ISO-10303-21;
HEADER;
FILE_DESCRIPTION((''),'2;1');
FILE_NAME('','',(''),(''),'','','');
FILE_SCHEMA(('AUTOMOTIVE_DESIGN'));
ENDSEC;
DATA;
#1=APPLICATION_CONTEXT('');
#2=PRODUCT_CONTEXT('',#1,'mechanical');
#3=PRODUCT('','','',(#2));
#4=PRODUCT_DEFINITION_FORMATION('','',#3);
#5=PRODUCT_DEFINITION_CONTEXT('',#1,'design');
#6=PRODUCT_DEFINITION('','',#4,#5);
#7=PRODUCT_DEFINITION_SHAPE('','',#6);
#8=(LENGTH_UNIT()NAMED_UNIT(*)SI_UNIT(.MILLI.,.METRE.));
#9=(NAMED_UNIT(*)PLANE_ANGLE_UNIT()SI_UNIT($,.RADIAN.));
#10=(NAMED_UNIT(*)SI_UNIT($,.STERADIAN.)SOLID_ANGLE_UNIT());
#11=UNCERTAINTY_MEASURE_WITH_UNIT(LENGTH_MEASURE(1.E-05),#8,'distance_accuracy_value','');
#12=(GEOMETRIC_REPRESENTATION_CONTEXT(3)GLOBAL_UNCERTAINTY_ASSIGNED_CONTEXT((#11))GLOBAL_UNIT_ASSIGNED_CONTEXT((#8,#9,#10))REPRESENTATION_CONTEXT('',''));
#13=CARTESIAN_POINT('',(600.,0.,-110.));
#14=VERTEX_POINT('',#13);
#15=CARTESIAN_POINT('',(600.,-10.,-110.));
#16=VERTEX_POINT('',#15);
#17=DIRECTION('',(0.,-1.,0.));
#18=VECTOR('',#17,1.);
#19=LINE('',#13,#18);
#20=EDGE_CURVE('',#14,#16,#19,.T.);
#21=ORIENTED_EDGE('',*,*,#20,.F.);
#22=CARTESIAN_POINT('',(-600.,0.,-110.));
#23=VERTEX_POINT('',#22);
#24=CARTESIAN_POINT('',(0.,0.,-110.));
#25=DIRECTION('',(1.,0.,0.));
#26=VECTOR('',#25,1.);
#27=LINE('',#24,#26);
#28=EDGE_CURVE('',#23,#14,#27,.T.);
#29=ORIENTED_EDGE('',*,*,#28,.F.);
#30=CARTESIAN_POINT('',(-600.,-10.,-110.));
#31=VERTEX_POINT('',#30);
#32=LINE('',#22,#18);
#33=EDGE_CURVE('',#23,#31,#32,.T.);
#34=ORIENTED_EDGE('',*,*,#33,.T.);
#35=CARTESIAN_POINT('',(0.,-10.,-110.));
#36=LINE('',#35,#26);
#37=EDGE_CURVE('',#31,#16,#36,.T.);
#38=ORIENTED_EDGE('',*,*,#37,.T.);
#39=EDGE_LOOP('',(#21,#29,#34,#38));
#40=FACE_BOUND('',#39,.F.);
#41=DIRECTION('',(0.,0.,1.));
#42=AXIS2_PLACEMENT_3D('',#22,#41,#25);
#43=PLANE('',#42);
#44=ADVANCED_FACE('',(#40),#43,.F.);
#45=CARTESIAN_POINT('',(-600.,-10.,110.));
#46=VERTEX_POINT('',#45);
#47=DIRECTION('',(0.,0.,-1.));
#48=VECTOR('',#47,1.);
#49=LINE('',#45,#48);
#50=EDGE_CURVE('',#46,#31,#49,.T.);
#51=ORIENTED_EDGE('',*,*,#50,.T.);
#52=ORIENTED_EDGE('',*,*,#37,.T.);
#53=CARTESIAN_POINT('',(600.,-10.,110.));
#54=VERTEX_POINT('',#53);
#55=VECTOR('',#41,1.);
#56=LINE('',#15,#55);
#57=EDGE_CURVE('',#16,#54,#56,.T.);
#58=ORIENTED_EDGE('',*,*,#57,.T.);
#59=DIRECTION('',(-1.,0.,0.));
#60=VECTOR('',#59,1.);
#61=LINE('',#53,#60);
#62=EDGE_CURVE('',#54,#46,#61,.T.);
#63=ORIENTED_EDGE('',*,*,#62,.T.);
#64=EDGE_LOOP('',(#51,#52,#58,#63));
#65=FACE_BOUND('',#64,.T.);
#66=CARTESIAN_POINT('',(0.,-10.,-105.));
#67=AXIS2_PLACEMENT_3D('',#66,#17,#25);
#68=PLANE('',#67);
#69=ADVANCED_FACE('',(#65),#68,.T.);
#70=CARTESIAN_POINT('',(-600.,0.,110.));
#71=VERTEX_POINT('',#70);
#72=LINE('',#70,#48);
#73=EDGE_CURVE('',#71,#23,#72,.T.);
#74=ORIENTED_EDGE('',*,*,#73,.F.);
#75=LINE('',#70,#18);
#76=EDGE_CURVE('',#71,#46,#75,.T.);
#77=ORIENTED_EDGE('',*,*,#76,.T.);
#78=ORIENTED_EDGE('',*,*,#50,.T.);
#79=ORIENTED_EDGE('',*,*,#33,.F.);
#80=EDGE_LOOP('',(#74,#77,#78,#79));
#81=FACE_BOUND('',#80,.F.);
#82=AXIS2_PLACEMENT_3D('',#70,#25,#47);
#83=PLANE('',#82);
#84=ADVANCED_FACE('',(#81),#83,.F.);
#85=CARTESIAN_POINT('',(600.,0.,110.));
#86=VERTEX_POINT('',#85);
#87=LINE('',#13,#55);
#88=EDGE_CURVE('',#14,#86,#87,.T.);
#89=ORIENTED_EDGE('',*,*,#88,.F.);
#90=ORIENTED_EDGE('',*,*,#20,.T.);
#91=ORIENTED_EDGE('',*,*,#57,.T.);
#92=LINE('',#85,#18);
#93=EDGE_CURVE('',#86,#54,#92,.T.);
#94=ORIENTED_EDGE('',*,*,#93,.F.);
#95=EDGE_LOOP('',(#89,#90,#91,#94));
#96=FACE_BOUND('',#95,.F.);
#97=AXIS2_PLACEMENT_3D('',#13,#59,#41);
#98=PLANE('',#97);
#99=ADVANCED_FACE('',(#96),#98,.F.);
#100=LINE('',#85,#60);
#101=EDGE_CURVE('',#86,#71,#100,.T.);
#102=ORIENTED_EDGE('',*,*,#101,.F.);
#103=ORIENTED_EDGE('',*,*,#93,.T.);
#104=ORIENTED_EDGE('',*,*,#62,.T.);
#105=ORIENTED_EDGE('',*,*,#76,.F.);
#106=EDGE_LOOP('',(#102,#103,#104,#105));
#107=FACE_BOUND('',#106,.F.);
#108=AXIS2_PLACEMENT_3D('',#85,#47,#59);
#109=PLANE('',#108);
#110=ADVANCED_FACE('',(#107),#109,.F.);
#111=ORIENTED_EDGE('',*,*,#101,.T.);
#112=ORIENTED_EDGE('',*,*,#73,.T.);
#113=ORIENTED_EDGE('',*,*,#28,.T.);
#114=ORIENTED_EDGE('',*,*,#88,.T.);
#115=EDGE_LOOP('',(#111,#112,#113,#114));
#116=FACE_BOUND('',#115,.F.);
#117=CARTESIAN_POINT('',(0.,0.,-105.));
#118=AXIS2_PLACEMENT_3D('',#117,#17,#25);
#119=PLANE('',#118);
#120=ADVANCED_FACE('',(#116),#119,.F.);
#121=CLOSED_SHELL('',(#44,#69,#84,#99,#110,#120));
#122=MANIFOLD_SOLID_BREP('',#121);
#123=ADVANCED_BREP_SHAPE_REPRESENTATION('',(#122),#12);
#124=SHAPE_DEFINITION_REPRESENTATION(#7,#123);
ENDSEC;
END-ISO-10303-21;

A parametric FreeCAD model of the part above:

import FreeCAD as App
import Part
import Sketcher
from FreeCAD import Vector


def add_polygon(sketch, points):
    """Adds a closed chain of lines whose ends are joined by coincident constraints."""
    first, n = sketch.GeometryCount, len(points)
    for a, b in zip(points, points[1:] + points[:1]):
        sketch.addGeometry(Part.LineSegment(App.Vector(*a, 0), App.Vector(*b, 0)), False)
    for i in range(n):
        sketch.addConstraint(Sketcher.Constraint("Coincident", first + i, 2, first + (i + 1) % n, 1))

doc = App.newDocument("Part")
body = doc.addObject("PartDesign::Body", "Body")

sketch1 = body.newObject("Sketcher::SketchObject", "Sketch")
sketch1.AttachmentSupport = (doc.getObject("XZ_Plane"), [""])
sketch1.MapMode = "FlatFace"
add_polygon(sketch1, [(-600, -110), (600, -110), (600, 110), (-600, 110)])
sketch1.addConstraint([
    Sketcher.Constraint("Horizontal", 0),
    Sketcher.Constraint("Vertical", 1),
    Sketcher.Constraint("Horizontal", 2),
    Sketcher.Constraint("Vertical", 3),
    Sketcher.Constraint("Symmetric", 0, 2, 2, 2, -1, 1),
    Sketcher.Constraint("DistanceX", 0, 1, 0, 2, 1200.0),
    Sketcher.Constraint("DistanceY", 1, 1, 1, 2, 220.0),
])
pad1 = body.newObject("PartDesign::Pad", "Pad")
pad1.Profile = sketch1
pad1.Length = 10

doc.recompute()
